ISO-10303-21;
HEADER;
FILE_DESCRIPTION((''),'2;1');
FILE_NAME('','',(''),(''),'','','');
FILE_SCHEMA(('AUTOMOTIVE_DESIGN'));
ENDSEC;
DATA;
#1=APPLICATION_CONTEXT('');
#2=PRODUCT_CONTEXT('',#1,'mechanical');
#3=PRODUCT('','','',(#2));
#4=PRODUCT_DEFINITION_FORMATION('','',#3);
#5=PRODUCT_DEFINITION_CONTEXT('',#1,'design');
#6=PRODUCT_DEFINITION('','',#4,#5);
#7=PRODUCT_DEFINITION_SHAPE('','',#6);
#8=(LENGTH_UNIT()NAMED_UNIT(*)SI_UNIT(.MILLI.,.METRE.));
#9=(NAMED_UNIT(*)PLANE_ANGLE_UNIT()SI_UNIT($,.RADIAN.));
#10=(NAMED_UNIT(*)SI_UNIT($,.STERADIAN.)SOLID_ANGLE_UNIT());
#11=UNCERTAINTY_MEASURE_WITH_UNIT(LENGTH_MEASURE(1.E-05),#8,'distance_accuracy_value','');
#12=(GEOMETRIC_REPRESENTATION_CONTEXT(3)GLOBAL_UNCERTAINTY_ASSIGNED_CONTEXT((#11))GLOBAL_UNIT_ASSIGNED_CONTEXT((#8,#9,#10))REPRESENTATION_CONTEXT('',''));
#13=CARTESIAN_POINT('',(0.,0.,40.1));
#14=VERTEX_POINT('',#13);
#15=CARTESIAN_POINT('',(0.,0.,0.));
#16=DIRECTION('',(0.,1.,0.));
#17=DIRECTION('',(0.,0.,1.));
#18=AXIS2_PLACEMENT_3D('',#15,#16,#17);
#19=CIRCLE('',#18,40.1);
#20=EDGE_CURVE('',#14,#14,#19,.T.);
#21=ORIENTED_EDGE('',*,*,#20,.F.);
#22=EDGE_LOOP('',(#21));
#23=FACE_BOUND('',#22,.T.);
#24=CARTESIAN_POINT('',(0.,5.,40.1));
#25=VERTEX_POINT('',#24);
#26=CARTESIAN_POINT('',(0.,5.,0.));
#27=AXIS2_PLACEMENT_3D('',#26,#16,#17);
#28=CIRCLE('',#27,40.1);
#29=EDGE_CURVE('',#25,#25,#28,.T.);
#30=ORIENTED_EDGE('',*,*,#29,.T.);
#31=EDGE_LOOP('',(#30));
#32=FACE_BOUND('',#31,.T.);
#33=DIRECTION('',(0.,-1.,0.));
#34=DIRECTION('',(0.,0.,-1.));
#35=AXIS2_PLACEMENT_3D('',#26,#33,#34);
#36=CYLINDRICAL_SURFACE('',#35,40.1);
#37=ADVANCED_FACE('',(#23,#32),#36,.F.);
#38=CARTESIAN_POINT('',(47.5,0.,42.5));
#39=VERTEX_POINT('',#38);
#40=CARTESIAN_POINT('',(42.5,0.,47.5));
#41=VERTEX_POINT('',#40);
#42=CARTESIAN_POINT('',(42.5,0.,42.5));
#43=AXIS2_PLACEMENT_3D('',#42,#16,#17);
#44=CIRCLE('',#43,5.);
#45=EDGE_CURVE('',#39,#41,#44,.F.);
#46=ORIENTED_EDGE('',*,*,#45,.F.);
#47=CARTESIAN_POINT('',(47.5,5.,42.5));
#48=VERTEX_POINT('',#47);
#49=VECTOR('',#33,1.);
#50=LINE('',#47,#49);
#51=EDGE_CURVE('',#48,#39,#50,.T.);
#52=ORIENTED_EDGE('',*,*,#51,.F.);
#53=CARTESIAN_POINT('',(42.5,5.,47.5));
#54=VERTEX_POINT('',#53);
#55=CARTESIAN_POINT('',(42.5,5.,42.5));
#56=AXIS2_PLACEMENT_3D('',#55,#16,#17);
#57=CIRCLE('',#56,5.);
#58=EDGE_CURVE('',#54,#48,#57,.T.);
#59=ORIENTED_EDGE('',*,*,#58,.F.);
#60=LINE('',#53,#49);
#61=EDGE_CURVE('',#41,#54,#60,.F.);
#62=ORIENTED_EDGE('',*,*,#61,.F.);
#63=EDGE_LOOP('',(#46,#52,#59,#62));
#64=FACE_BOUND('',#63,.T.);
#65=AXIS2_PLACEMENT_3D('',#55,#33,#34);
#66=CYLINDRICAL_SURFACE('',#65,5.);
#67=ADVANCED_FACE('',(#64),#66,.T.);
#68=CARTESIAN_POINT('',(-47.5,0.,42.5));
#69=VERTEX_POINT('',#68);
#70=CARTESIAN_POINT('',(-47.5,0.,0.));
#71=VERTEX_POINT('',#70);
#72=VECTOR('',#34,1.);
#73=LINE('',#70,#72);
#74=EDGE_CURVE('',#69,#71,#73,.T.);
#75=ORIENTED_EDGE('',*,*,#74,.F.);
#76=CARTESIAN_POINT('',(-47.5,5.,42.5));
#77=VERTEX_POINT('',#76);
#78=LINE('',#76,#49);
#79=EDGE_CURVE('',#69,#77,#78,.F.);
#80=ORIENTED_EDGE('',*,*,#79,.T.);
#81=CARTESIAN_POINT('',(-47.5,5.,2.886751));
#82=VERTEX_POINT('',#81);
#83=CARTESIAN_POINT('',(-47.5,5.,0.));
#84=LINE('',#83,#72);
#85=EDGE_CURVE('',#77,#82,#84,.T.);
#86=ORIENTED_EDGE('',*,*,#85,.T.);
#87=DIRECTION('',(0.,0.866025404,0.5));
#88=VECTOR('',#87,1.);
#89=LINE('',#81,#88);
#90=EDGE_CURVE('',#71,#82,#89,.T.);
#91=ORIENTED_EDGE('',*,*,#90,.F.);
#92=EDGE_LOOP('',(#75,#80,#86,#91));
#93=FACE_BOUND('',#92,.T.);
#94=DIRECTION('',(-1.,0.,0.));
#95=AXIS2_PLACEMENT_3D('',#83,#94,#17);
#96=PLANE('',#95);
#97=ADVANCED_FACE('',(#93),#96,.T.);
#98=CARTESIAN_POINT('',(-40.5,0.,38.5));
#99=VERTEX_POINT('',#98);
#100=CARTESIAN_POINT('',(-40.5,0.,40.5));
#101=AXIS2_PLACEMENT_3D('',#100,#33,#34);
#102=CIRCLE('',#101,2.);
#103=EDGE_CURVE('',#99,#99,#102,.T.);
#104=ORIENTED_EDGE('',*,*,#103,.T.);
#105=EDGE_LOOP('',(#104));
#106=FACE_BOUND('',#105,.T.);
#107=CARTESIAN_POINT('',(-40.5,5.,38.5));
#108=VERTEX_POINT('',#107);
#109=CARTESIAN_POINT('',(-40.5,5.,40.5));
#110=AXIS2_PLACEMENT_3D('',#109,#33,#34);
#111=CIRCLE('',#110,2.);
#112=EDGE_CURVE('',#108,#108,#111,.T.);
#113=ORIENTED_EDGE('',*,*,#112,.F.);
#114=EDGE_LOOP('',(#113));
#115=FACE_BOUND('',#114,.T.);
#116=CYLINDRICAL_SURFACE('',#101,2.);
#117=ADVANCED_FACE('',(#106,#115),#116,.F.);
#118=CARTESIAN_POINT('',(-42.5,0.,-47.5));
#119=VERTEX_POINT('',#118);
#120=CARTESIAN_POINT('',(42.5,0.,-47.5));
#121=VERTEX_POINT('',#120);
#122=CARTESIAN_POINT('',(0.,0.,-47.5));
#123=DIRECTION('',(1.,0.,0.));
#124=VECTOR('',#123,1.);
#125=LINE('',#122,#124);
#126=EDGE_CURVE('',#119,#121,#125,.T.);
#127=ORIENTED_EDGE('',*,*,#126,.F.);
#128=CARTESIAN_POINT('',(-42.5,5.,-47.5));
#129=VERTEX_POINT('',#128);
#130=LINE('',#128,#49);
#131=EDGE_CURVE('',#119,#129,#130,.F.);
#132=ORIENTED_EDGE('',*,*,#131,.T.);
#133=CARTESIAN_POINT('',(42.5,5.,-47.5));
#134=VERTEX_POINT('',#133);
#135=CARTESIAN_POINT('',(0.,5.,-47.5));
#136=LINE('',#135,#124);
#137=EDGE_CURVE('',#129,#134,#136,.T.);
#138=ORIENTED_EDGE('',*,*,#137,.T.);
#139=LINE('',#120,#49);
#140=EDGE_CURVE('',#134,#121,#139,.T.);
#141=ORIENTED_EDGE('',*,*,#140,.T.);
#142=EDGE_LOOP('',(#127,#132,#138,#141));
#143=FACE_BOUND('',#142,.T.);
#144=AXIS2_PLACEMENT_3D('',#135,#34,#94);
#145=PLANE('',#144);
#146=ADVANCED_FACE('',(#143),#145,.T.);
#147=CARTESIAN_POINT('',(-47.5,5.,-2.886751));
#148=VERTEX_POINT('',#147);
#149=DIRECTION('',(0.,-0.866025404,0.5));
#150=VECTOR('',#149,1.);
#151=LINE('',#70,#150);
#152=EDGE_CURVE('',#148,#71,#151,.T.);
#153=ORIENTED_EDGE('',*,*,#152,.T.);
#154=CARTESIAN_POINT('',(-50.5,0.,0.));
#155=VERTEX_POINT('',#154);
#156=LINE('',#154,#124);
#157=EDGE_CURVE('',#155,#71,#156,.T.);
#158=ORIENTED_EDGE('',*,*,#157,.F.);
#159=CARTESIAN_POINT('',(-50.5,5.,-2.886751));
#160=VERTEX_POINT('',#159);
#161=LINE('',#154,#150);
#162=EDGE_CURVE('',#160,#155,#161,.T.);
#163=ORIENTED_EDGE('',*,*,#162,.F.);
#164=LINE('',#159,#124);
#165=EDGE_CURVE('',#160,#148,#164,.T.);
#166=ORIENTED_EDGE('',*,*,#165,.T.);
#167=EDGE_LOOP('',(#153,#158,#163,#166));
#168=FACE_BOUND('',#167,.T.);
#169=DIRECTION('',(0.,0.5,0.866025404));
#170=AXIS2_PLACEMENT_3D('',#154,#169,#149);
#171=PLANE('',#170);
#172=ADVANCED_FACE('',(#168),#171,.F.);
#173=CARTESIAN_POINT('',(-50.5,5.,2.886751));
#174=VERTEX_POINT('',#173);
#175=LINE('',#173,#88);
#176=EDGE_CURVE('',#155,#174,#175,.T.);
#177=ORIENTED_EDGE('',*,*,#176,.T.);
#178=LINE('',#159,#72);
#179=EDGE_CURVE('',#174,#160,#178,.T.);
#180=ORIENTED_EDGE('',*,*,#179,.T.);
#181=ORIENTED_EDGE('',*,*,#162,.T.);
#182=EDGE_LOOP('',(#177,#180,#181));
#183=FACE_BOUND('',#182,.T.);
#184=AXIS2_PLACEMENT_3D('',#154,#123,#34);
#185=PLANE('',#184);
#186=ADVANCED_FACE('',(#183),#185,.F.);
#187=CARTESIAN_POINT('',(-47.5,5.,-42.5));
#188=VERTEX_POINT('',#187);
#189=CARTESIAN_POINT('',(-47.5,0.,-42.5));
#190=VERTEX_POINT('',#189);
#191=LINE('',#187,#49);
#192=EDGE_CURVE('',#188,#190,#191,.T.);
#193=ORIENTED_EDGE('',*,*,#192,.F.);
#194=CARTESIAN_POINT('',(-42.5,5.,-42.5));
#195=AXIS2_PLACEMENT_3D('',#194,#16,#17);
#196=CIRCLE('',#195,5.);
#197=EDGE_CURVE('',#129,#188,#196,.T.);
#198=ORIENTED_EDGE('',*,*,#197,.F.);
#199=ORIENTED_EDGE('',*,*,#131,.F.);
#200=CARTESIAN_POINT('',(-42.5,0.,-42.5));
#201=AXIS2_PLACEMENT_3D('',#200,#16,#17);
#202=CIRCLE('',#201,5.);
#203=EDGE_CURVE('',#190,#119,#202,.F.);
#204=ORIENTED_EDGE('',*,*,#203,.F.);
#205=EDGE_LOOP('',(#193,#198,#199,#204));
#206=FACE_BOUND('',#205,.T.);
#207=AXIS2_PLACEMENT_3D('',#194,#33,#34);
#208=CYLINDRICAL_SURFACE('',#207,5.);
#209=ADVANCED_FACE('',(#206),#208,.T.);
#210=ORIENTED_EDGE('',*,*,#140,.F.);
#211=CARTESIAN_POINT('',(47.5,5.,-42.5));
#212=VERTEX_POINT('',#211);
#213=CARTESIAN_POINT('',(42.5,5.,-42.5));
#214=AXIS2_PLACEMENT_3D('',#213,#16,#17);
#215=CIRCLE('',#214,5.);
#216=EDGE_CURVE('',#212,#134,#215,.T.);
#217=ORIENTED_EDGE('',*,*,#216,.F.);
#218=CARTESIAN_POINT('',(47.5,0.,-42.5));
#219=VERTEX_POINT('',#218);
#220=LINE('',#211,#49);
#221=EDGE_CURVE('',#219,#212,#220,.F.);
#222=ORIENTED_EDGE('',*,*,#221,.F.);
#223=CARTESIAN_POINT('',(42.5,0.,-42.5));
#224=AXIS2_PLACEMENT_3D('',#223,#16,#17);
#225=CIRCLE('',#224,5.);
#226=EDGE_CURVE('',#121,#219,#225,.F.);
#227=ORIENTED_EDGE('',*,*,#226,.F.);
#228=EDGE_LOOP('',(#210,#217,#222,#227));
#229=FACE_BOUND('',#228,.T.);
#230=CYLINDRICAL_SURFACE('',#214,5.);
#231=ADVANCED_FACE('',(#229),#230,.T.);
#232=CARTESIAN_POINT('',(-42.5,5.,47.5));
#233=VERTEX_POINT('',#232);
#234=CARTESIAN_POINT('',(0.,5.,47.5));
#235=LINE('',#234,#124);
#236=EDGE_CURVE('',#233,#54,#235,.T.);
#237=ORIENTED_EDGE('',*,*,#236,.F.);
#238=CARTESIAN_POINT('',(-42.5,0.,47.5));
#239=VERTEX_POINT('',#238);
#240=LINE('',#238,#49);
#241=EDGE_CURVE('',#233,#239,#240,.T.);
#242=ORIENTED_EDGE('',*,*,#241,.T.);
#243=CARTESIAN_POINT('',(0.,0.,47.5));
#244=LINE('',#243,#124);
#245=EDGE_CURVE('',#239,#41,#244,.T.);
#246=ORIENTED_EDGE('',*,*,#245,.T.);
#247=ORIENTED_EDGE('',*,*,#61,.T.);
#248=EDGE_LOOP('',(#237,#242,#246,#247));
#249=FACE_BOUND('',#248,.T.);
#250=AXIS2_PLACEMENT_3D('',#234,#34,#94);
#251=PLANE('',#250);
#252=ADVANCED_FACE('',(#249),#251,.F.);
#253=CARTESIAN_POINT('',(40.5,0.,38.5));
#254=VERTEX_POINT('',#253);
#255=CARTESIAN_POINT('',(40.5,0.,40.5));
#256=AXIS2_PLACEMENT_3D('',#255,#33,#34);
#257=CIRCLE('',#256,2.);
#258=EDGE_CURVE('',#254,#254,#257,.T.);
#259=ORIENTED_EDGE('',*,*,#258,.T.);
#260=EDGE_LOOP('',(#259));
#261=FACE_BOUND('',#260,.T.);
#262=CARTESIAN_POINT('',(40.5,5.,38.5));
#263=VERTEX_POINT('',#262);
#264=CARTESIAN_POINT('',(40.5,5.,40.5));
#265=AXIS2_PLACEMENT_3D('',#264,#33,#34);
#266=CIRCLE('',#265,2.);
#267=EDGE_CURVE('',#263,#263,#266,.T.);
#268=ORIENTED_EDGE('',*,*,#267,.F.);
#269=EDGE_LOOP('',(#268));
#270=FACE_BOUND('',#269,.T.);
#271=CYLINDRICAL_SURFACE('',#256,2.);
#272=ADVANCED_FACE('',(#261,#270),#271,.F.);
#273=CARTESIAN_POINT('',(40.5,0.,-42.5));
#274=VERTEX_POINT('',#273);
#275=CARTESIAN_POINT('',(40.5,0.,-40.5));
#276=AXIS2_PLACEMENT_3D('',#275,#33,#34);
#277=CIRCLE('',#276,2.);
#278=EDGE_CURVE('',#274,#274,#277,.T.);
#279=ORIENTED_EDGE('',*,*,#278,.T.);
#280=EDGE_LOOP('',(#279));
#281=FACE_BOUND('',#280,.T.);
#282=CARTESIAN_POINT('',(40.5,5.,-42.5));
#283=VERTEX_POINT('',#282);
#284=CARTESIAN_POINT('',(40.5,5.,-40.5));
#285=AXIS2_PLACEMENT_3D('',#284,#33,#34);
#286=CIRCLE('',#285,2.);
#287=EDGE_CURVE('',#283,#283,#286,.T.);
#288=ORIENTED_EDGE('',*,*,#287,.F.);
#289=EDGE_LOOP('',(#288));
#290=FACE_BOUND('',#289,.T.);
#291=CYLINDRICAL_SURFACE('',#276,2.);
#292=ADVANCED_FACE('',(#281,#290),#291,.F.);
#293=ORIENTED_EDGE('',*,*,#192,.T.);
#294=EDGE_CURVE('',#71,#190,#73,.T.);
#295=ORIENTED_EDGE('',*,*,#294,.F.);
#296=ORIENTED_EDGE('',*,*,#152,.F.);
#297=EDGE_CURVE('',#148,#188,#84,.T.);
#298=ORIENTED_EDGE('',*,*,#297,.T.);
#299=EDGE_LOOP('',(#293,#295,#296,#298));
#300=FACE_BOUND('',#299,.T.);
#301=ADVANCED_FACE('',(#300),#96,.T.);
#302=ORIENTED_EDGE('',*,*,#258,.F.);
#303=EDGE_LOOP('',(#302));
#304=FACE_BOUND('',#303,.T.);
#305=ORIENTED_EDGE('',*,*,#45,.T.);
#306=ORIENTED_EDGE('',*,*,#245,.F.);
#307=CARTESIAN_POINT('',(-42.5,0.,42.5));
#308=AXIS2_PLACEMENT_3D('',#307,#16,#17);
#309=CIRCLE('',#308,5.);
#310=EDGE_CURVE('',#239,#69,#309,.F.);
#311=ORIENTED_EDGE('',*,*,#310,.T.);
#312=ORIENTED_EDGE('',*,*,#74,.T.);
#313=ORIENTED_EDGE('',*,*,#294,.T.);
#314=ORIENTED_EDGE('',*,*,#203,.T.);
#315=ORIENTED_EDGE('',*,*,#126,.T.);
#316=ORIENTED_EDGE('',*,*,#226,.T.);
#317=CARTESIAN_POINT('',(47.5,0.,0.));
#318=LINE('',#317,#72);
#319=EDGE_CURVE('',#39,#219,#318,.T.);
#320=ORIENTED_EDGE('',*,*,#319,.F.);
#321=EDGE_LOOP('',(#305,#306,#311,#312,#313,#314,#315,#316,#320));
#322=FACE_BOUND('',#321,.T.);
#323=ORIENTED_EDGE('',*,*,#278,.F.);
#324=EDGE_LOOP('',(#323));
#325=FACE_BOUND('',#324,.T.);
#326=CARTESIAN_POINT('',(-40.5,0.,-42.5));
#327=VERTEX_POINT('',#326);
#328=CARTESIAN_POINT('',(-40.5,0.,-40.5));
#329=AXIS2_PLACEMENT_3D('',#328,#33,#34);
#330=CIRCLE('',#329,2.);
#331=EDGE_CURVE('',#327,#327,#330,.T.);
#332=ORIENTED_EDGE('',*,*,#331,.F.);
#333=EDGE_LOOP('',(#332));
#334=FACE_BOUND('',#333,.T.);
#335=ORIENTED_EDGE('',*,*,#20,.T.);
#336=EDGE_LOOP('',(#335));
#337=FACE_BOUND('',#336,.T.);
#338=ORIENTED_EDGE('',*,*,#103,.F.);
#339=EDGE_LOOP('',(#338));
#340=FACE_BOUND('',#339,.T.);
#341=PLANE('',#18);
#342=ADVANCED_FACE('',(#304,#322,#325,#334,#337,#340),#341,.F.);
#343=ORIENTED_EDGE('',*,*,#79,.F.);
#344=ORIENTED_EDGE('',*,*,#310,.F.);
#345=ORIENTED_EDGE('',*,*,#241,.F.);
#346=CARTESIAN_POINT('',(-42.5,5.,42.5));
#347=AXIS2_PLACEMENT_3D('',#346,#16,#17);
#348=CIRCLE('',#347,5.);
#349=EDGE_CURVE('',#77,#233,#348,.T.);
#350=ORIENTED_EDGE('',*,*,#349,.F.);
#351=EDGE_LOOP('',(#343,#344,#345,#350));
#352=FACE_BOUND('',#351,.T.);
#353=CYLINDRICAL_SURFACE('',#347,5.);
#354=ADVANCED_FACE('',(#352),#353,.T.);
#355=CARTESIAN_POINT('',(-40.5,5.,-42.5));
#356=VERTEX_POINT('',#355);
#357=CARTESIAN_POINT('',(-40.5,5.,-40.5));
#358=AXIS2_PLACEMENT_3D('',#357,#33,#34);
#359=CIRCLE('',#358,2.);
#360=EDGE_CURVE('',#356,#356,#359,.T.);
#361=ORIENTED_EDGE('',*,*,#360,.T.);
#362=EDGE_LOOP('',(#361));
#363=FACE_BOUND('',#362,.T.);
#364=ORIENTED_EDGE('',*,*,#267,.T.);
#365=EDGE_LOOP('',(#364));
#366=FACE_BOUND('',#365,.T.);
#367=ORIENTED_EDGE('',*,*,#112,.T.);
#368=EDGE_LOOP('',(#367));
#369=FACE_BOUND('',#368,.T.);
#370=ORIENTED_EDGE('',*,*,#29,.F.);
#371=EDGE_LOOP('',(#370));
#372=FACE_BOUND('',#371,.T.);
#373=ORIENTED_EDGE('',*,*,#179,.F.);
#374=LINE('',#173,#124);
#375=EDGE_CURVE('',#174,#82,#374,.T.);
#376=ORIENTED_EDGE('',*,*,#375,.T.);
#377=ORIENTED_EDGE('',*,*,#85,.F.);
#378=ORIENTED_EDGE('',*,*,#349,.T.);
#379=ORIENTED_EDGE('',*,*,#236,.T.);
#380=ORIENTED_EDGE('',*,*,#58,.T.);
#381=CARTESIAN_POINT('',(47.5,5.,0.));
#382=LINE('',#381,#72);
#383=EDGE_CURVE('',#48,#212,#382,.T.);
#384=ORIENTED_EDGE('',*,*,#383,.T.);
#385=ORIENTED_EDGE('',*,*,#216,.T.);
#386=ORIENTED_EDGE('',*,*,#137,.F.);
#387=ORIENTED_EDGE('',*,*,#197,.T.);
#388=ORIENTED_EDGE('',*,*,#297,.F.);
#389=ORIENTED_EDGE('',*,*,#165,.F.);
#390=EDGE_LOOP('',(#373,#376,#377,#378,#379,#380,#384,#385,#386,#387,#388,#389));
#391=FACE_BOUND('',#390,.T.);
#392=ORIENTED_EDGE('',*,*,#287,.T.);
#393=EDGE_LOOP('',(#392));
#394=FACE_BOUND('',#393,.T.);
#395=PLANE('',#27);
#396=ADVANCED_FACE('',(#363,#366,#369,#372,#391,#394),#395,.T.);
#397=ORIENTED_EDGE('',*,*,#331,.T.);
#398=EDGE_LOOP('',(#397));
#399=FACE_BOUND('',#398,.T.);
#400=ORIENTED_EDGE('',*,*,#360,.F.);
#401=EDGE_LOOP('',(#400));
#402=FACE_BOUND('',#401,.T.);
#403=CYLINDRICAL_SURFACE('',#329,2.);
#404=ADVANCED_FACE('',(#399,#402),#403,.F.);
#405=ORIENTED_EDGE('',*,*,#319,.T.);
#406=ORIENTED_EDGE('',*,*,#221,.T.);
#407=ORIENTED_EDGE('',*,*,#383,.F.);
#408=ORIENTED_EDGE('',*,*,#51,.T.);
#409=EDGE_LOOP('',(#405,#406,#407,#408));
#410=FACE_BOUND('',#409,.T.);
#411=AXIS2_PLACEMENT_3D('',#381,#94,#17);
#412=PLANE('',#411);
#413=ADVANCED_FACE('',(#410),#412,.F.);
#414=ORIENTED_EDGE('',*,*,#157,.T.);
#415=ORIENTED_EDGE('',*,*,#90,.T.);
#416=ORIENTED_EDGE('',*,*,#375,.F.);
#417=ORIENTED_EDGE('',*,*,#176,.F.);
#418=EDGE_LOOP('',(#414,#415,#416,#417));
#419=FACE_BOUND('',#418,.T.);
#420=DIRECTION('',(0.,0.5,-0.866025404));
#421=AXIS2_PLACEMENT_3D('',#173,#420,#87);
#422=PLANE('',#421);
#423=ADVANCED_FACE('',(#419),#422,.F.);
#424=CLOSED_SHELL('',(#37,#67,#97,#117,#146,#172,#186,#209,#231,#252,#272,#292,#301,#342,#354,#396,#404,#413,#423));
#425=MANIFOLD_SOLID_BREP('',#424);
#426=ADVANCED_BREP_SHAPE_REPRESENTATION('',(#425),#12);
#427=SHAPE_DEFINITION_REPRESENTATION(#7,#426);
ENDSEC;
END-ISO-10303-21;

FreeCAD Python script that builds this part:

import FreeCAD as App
import Part
import Sketcher

V = App.Vector
Q = App.Units.Quantity


def edges_at(feature, points):
    """Names of the edges that pass closest to the given points."""
    edges = feature.Shape.Edges
    near = lambda p: min(range(len(edges)), key=lambda i: edges[i].distToShape(Part.Vertex(*p))[0])
    return sorted({f"Edge{near(p) + 1}" for p in points})


def add_polygon(sketch, points):
    """Adds a closed chain of lines whose ends are joined by coincident constraints."""
    first, n = sketch.GeometryCount, len(points)
    for a, b in zip(points, points[1:] + points[:1]):
        sketch.addGeometry(Part.LineSegment(App.Vector(*a, 0), App.Vector(*b, 0)), False)
    for i in range(n):
        sketch.addConstraint(Sketcher.Constraint("Coincident", first + i, 2, first + (i + 1) % n, 1))

doc = App.newDocument("Part")
body = doc.addObject("PartDesign::Body", "Body")

# Sketch on XZ plane
sketch1 = doc.addObject("Sketcher::SketchObject", "Sketch")
body.addObject(sketch1)
sketch1.AttachmentSupport = (doc.XZ_Plane, [""])
sketch1.MapMode = "FlatFace"
add_polygon(sketch1, [(-48, -48), (-48, 48), (48, 48), (48, -48)])  # lines 0-3
sketch1.addGeometry(Part.Circle(V(0, 0, 0), V(0, 0, 1), 40), False)  # 4
sketch1.addConstraint([
    Sketcher.Constraint("Vertical", 0),
    Sketcher.Constraint("Horizontal", 1),
    Sketcher.Constraint("Vertical", 2),
    Sketcher.Constraint("Horizontal", 3),
    Sketcher.Constraint("Coincident", 4, 3, -1, 1),
    Sketcher.Constraint("Symmetric", 0, 2, 2, 2, -1, 1),
    Sketcher.Constraint("Equal", 3, 0),
    Sketcher.Constraint("Diameter", 4, Q("80.2 mm")),
    Sketcher.Constraint("DistanceX", 1, 1, 1, 2, Q("95 mm")),
])
pad1 = doc.addObject("PartDesign::Pad", "Pad")
body.addObject(pad1)
pad1.Profile = sketch1
pad1.Length = 5
pad1.Reversed = True

# Sketch on XZ plane
sketch2 = doc.addObject("Sketcher::SketchObject", "Sketch001")
body.addObject(sketch2)
sketch2.AttachmentSupport = (doc.XZ_Plane, [""])
sketch2.MapMode = "FlatFace"
sketch2.addGeometry([
    Part.Circle(V(-40.5, 40.5, 0), V(0, 0, 1), 2),
    Part.Circle(V(40.5, 40.5, 0), V(0, 0, 1), 2),
    Part.Circle(V(40.5, -40.5, 0), V(0, 0, 1), 2),
    Part.Circle(V(-40.5, -40.5, 0), V(0, 0, 1), 2),
], False)
sketch2.addConstraint([
    Sketcher.Constraint("Equal", 0, 1),
    Sketcher.Constraint("Equal", 1, 2),
    Sketcher.Constraint("Equal", 2, 3),
    Sketcher.Constraint("Symmetric", 0, 3, 2, 3, -1, 1),
    Sketcher.Constraint("Symmetric", 1, 3, 3, 3, -1, 1),
    Sketcher.Constraint("Symmetric", 0, 3, 1, 3, -2),
    Sketcher.Constraint("Diameter", 0, Q("4 mm")),
    Sketcher.Constraint("DistanceX", 0, 3, 1, 3, Q("81 mm")),
    Sketcher.Constraint("DistanceY", 2, 3, 1, 3, Q("81 mm")),
])
doc.recompute()
hole = doc.addObject("PartDesign::Hole", "Hole")
body.addObject(hole)
hole.Profile = sketch2
hole.ThreadType = "None"
hole.Diameter = 4
hole.DepthType = "ThroughAll"

# Sketch on YZ plane
sketch3 = doc.addObject("Sketcher::SketchObject", "Sketch002")
body.addObject(sketch3)
sketch3.AttachmentSupport = (doc.YZ_Plane, [""])
sketch3.MapMode = "FlatFace"
sketch3.AttachmentOffset = App.Placement(V(0, 0, -47.5), App.Rotation())
add_polygon(sketch3, [(5, -3), (0, 0), (5, 3)])  # lines 0-2
sketch3.addConstraint([
    Sketcher.Constraint("Vertical", 2),
    Sketcher.Constraint("Coincident", 0, 2, -1, 1),
    Sketcher.Constraint("Equal", 0, 1),
    Sketcher.Constraint("Angle", 0, Q("150 deg")),
    Sketcher.Constraint("DistanceX", -1, 1, 1, 2, Q("5 mm")),
])
pad2 = doc.addObject("PartDesign::Pad", "Pad001")
body.addObject(pad2)
pad2.Profile = sketch3
pad2.Length = 3
pad2.Reversed = True
doc.recompute()

fillet = doc.addObject("PartDesign::Fillet", "Fillet")
body.addObject(fillet)
fillet.Base = (pad2, edges_at(pad2, [
    (-47.5, 2.5, 47.5),
    (-47.5, 2.5, -47.5),
    (47.5, 2.5, -47.5),
    (47.5, 2.5, 47.5),
]))
fillet.Radius = 5

doc.recompute()
